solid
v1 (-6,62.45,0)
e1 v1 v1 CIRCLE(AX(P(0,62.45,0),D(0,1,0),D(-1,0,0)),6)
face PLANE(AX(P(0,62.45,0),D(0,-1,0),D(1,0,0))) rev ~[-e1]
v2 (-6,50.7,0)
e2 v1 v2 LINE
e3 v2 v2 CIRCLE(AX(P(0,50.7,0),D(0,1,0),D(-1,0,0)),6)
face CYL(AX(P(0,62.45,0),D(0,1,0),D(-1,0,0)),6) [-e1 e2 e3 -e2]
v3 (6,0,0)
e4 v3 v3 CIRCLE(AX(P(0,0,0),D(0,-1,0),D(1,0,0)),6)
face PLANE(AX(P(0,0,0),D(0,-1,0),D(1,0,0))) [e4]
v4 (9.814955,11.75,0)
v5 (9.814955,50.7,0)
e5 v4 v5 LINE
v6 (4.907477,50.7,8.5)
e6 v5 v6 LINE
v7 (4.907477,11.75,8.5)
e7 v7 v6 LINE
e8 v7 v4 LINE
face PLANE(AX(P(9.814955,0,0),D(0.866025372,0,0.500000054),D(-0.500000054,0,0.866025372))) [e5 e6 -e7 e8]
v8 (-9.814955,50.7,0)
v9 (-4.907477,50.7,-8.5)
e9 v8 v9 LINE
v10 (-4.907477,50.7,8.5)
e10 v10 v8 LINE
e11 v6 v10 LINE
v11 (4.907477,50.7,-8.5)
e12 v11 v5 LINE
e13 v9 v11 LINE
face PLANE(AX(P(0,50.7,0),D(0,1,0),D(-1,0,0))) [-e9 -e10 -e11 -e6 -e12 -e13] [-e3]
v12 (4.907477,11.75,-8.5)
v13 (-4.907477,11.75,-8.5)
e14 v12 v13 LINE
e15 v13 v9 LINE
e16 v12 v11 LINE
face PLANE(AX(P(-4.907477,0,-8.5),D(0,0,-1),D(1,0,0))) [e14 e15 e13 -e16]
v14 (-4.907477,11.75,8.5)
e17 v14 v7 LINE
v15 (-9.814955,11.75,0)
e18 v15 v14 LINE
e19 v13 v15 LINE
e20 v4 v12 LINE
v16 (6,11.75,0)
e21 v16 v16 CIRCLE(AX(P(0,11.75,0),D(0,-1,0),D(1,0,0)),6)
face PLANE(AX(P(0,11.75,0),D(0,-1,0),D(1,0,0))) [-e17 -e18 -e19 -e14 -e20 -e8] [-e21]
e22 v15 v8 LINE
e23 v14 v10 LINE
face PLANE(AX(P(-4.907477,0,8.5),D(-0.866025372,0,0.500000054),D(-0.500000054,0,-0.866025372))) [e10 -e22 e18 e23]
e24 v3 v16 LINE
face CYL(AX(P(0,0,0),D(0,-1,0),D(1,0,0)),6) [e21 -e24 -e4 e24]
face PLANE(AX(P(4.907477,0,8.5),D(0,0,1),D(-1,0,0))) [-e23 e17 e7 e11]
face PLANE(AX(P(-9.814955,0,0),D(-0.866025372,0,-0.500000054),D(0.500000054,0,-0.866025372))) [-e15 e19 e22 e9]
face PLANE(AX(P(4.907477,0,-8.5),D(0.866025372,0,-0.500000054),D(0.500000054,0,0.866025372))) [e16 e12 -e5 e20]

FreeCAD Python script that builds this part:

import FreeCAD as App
import Part
import Sketcher

V = App.Vector
Q = App.Units.Quantity

doc = App.newDocument("Part")
body = doc.addObject("PartDesign::Body", "Body")

# Sketch on XZ plane
sketch1 = body.newObject("Sketcher::SketchObject", "Sketch")
sketch1.AttachmentSupport = (doc.getObject("XZ_Plane"), [""])
sketch1.MapMode = "FlatFace"
sketch1.addGeometry(Part.LineSegment(V(-5, -8, 0), V(5, -8, 0)), False)
sketch1.addGeometry(Part.LineSegment(V(5, -8, 0), V(10, 0, 0)), False)
sketch1.addGeometry(Part.LineSegment(V(10, 0, 0), V(5, 8, 0)), False)
sketch1.addGeometry(Part.LineSegment(V(5, 8, 0), V(-5, 8, 0)), False)
sketch1.addGeometry(Part.LineSegment(V(-5, 8, 0), V(-10, 0, 0)), False)
sketch1.addGeometry(Part.LineSegment(V(-10, 0, 0), V(-5, -8, 0)), False)
sketch1.addConstraint(Sketcher.Constraint("Coincident", 0, 2, 1, 1))
sketch1.addConstraint(Sketcher.Constraint("Coincident", 1, 2, 2, 1))
sketch1.addConstraint(Sketcher.Constraint("Coincident", 2, 2, 3, 1))
sketch1.addConstraint(Sketcher.Constraint("Coincident", 3, 2, 4, 1))
sketch1.addConstraint(Sketcher.Constraint("Coincident", 4, 2, 5, 1))
sketch1.addConstraint(Sketcher.Constraint("Coincident", 5, 2, 0, 1))
sketch1.addConstraint(Sketcher.Constraint("Horizontal", 0))
sketch1.addConstraint(Sketcher.Constraint("Horizontal", 3))
sketch1.addConstraint(Sketcher.Constraint("Symmetric", 0, 2, 3, 2, -1, 1))
sketch1.addConstraint(Sketcher.Constraint("Symmetric", 1, 2, 4, 2, -1, 1))
sketch1.addConstraint(Sketcher.Constraint("PointOnObject", 1, 2, -1))
sketch1.addConstraint(Sketcher.Constraint("Parallel", 2, 5))
sketch1.addConstraint(Sketcher.Constraint("Vertical", 0, 2, 2, 2))
sketch1.addConstraint(Sketcher.Constraint("Angle", 1, Q("59.999996 deg")))
sketch1.addConstraint(Sketcher.Constraint("DistanceY", 0, 2, 2, 2, 17.0))
sketch1.addConstraint(Sketcher.Constraint("DistanceX", 0, 1, 0, 2, 9.814954))
pad1 = body.newObject("PartDesign::Pad", "Pad")
pad1.Profile = sketch1
pad1.Length = 62.45
pad1.Reversed = True

# Sketch on XZ plane
sketch2 = body.newObject("Sketcher::SketchObject", "Sketch001")
sketch2.AttachmentSupport = (doc.getObject("XZ_Plane"), [""])
sketch2.MapMode = "FlatFace"
sketch2.addGeometry(Part.Circle(V(0, 0, 0), V(0, 0, 1), 16), False)
sketch2.addGeometry(Part.Circle(V(0, 0, 0), V(0, 0, 1), 6), False)
sketch2.addConstraint(Sketcher.Constraint("Coincident", 0, 3, -1, 1))
sketch2.addConstraint(Sketcher.Constraint("Coincident", 1, 3, -1, 1))
sketch2.addConstraint(Sketcher.Constraint("Diameter", 1, 12.0))
sketch2.addConstraint(Sketcher.Constraint("Diameter", 0, 32.956098))
pocket1 = body.newObject("PartDesign::Pocket", "Pocket")
pocket1.Profile = sketch2
pocket1.Length = 11.75

# Sketch on XZ plane
sketch3 = body.newObject("Sketcher::SketchObject", "Sketch002")
sketch3.AttachmentSupport = (doc.getObject("XZ_Plane"), [""])
sketch3.MapMode = "FlatFace"
sketch3.AttachmentOffset = App.Placement(V(0, 0, -62.45), App.Rotation())
sketch3.addGeometry(Part.Circle(V(0, 0, 0), V(0, 0, 1), 15), False)
sketch3.addGeometry(Part.Circle(V(0, 0, 0), V(0, 0, 1), 6), False)
sketch3.addConstraint(Sketcher.Constraint("Coincident", 0, 3, -1, 1))
sketch3.addConstraint(Sketcher.Constraint("Coincident", 1, 3, -1, 1))
sketch3.addConstraint(Sketcher.Constraint("Diameter", 1, 12.0))
sketch3.addConstraint(Sketcher.Constraint("Diameter", 0, 30.826588))
pocket2 = body.newObject("PartDesign::Pocket", "Pocket001")
pocket2.Profile = sketch3
pocket2.Length = 11.75
pocket2.Reversed = True

doc.recompute()
